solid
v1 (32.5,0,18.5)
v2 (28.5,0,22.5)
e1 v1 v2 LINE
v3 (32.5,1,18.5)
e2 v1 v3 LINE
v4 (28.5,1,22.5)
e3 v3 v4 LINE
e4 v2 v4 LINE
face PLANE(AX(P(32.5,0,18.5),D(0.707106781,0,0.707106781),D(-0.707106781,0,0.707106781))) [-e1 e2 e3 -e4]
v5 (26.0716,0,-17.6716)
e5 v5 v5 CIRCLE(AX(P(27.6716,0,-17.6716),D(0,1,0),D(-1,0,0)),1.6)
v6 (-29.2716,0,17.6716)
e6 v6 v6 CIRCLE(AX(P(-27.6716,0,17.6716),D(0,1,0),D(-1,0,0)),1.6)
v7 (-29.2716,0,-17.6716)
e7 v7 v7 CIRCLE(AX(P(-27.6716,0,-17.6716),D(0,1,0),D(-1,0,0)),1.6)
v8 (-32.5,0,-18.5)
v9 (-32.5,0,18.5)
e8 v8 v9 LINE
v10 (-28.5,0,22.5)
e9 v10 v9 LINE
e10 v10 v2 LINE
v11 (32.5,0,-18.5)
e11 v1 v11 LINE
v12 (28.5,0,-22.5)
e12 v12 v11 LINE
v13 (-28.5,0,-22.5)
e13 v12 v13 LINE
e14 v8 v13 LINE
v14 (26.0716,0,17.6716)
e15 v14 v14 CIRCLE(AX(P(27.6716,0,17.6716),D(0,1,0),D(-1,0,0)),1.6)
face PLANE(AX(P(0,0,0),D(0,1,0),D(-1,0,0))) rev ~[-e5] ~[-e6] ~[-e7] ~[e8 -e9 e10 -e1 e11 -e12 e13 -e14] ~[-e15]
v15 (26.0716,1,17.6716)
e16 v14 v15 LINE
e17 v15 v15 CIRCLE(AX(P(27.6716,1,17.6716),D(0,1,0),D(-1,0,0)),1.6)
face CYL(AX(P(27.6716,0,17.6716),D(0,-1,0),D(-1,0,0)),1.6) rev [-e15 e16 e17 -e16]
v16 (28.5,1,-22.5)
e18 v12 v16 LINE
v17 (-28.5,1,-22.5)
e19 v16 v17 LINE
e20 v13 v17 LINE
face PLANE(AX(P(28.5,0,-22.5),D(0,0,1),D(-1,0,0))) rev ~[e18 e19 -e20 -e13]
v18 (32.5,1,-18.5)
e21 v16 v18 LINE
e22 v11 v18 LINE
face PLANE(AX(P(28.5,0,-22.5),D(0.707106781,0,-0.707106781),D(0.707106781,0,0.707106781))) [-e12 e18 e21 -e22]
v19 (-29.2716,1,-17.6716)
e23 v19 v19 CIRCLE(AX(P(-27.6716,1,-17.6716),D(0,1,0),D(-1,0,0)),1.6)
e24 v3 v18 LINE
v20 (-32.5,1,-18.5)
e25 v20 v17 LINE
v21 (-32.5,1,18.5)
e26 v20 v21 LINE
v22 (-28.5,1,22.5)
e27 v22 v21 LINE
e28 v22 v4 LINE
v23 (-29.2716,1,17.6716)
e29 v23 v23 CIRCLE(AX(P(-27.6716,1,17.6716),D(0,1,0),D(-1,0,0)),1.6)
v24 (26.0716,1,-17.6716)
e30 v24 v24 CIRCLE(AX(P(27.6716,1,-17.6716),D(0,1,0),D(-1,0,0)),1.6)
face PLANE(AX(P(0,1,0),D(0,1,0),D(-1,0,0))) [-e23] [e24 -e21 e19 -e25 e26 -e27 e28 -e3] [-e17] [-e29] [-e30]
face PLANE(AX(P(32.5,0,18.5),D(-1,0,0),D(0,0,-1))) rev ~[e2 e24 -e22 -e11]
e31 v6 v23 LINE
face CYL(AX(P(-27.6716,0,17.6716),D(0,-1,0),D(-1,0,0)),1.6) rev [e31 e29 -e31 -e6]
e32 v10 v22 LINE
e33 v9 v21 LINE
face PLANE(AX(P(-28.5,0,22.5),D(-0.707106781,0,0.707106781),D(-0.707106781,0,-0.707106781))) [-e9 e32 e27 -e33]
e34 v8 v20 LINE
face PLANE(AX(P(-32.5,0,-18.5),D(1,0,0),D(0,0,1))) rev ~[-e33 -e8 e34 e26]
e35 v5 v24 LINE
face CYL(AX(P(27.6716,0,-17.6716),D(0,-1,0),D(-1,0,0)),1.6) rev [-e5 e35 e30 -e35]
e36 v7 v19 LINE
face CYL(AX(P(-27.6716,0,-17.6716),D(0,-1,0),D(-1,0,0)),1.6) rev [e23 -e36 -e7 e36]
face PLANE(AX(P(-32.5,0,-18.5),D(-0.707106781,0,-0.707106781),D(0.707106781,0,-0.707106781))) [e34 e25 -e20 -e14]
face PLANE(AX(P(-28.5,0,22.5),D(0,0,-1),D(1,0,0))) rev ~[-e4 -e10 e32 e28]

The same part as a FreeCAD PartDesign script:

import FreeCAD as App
import Part
import Sketcher
from FreeCAD import Vector
Q = App.Units.Quantity


def add_polygon(sketch, points):
    """Adds a closed chain of lines whose ends are joined by coincident constraints."""
    first, n = sketch.GeometryCount, len(points)
    for a, b in zip(points, points[1:] + points[:1]):
        sketch.addGeometry(Part.LineSegment(App.Vector(*a, 0), App.Vector(*b, 0)), False)
    for i in range(n):
        sketch.addConstraint(Sketcher.Constraint("Coincident", first + i, 2, first + (i + 1) % n, 1))

doc = App.newDocument("Part")
body = doc.addObject("PartDesign::Body", "Body")

sketch1 = body.newObject("Sketcher::SketchObject", "Sketch")
sketch1.AttachmentSupport = (doc.getObject("XZ_Plane"), [""])
sketch1.MapMode = "FlatFace"
add_polygon(sketch1, [(-32.5, 18.5), (-28.5, 22.5), (28.5, 22.5), (32.5, 18.5), (32.5, -18.5), (28.5, -22.5), (-28.5, -22.5), (-32.5, -18.5)])
sketch1.addGeometry(Part.Circle(Vector(27.7, -17.7, 0), Vector(0, 0, 1), 1.6), False)
sketch1.addGeometry(Part.Circle(Vector(-27.7, -17.7, 0), Vector(0, 0, 1), 1.6), False)
sketch1.addGeometry(Part.Circle(Vector(27.7, 17.7, 0), Vector(0, 0, 1), 1.6), False)
sketch1.addGeometry(Part.Circle(Vector(-27.7, 17.7, 0), Vector(0, 0, 1), 1.6), False)
sketch1.addConstraint(Sketcher.Constraint("Horizontal", 1))
sketch1.addConstraint(Sketcher.Constraint("Vertical", 3))
sketch1.addConstraint(Sketcher.Constraint("Horizontal", 5))
sketch1.addConstraint(Sketcher.Constraint("Vertical", 7))
sketch1.addConstraint(Sketcher.Constraint("Equal", 8, 9))
sketch1.addConstraint(Sketcher.Constraint("Equal", 9, 10))
sketch1.addConstraint(Sketcher.Constraint("Equal", 10, 11))
sketch1.addConstraint(Sketcher.Constraint("Symmetric", 9, 3, 10, 3, -1, 1))
sketch1.addConstraint(Sketcher.Constraint("Symmetric", 8, 3, 11, 3, -1, 1))
sketch1.addConstraint(Sketcher.Constraint("Symmetric", 0, 2, 4, 2, -1, 1))
sketch1.addConstraint(Sketcher.Constraint("Symmetric", 2, 2, 6, 2, -1, 1))
sketch1.addConstraint(Sketcher.Constraint("Symmetric", 8, 3, 9, 3, -2))
sketch1.addConstraint(Sketcher.Constraint("Perpendicular", 0, 2))
sketch1.addConstraint(Sketcher.Constraint("Perpendicular", 2, 4))
sketch1.addConstraint(Sketcher.Constraint("Perpendicular", 4, 6))
sketch1.addConstraint(Sketcher.Constraint("Horizontal", 3, 2, 6, 2))
sketch1.addConstraint(Sketcher.Constraint("Vertical", 1, 2, 4, 2))
sketch1.addConstraint(Sketcher.Constraint("Diameter", 8, Q("3.2 mm")))
sketch1.addConstraint(Sketcher.Constraint("DistanceX", 1, 2, 2, 2, Q("4 mm")))
sketch1.addConstraint(Sketcher.Constraint("DistanceY", 4, 2, 1, 2, Q("45 mm")))
sketch1.addConstraint(Sketcher.Constraint("DistanceX", 1, 1, 1, 2, Q("57 mm")))
sketch1.addConstraint(Sketcher.Constraint("DistanceX", -1, 1, 8, 3, Q("27.6716 mm")))
sketch1.addConstraint(Sketcher.Constraint("DistanceY", 8, 3, -1, 1, Q("17.6716 mm")))
pad1 = body.newObject("PartDesign::Pad", "Pad")
pad1.Profile = sketch1
pad1.Length = 1
pad1.Reversed = True

doc.recompute()
